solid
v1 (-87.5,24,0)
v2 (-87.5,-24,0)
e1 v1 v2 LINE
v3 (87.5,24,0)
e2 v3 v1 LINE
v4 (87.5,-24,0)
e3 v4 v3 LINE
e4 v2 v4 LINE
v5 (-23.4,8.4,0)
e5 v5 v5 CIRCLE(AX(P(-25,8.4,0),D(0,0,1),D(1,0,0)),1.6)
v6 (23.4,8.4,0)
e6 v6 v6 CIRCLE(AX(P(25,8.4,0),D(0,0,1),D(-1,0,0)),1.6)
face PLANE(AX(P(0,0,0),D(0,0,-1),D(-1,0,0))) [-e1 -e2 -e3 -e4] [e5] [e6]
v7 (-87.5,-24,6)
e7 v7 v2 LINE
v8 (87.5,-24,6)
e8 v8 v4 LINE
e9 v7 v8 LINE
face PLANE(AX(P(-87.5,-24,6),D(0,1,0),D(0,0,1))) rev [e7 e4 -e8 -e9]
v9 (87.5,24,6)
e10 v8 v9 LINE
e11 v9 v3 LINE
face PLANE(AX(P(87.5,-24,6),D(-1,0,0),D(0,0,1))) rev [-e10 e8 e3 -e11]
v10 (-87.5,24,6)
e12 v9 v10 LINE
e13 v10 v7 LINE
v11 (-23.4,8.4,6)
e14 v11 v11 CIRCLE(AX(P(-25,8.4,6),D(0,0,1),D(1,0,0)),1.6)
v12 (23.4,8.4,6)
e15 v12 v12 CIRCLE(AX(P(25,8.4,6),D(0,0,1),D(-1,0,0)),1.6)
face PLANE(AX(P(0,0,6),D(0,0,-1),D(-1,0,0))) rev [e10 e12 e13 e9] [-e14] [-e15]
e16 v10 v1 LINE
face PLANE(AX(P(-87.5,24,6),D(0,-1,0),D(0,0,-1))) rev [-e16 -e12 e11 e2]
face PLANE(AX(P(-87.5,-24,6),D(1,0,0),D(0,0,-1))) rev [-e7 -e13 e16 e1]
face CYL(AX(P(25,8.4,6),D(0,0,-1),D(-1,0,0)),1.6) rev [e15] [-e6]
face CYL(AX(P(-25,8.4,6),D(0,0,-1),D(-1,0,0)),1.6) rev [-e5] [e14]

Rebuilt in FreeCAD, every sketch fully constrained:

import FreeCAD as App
import Part
import Sketcher
from FreeCAD import Vector

doc = App.newDocument("Part")
body = doc.addObject("PartDesign::Body", "Body")

sketch1 = body.newObject("Sketcher::SketchObject", "Sketch")
sketch1.AttachmentSupport = (doc.getObject("XY_Plane"), [""])
sketch1.MapMode = "FlatFace"
sketch1.addGeometry([
    Part.LineSegment(Vector(-87.5, 24, 0), Vector(-87.5, -24, 0)),
    Part.LineSegment(Vector(-87.5, -24, 0), Vector(87.5, -24, 0)),
    Part.LineSegment(Vector(87.5, -24, 0), Vector(87.5, 24, 0)),
    Part.LineSegment(Vector(87.5, 24, 0), Vector(-87.5, 24, 0)),
    Part.Circle(Vector(-25, 8.4, 0), Vector(0, 0, 1), 1.6),
    Part.Circle(Vector(25, 8.4, 0), Vector(0, 0, 1), 1.6),
], False)
sketch1.addConstraint([
    Sketcher.Constraint("Coincident", 0, 2, 1, 1),
    Sketcher.Constraint("Coincident", 1, 2, 2, 1),
    Sketcher.Constraint("Coincident", 2, 2, 3, 1),
    Sketcher.Constraint("Coincident", 3, 2, 0, 1),
    Sketcher.Constraint("Vertical", 0),
    Sketcher.Constraint("Horizontal", 1),
    Sketcher.Constraint("Vertical", 2),
    Sketcher.Constraint("Horizontal", 3),
    Sketcher.Constraint("Equal", 4, 5),
    Sketcher.Constraint("Symmetric", 0, 2, 2, 2, -1, 1),
    Sketcher.Constraint("Symmetric", 4, 3, 5, 3, -2),
    Sketcher.Constraint("Diameter", 4, 3.2),
    Sketcher.Constraint("DistanceX", 1, 1, 1, 2, 175.0),
    Sketcher.Constraint("DistanceY", 0, 2, 0, 1, 48.0),
    Sketcher.Constraint("DistanceX", 4, 3, -1, 1, 25.0),
    Sketcher.Constraint("DistanceY", -1, 1, 4, 3, 8.4),
])
pad1 = body.newObject("PartDesign::Pad", "Pad")
pad1.Profile = sketch1
pad1.Length = 6

doc.recompute()
